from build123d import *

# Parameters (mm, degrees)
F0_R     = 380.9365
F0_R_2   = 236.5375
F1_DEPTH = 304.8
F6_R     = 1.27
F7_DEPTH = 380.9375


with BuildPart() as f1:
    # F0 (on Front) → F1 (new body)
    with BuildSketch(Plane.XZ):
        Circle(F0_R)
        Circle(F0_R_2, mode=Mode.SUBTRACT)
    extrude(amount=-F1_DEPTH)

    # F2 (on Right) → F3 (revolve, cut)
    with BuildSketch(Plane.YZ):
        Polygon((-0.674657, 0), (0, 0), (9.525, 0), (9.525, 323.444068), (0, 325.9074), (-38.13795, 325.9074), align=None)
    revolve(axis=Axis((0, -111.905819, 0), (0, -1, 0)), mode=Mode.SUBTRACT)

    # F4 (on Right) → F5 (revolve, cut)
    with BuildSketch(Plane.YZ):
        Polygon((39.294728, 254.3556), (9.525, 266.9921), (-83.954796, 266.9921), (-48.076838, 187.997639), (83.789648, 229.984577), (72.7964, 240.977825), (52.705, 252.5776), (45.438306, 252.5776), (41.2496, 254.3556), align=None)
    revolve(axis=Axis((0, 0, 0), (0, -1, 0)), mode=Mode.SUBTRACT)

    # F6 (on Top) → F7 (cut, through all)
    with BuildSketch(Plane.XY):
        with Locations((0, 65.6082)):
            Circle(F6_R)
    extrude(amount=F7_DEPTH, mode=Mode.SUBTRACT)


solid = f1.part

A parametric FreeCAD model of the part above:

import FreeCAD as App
import Part
import Sketcher
from FreeCAD import Vector
Q = App.Units.Quantity


def add_polygon(sketch, points):
    """Adds a closed chain of lines whose ends are joined by coincident constraints."""
    first, n = sketch.GeometryCount, len(points)
    for a, b in zip(points, points[1:] + points[:1]):
        sketch.addGeometry(Part.LineSegment(App.Vector(*a, 0), App.Vector(*b, 0)), False)
    for i in range(n):
        sketch.addConstraint(Sketcher.Constraint("Coincident", first + i, 2, first + (i + 1) % n, 1))

doc = App.newDocument("Part")
body = doc.addObject("PartDesign::Body", "Body")

sketch1 = body.newObject("Sketcher::SketchObject", "Sketch")
sketch1.AttachmentSupport = (doc.getObject("XZ_Plane"), [""])
sketch1.MapMode = "FlatFace"
sketch1.addGeometry([
    Part.Circle(Vector(0, 0, 0), Vector(0, 0, 1), 381),
    Part.Circle(Vector(0, 0, 0), Vector(0, 0, 1), 237),
], False)
sketch1.addConstraint([
    Sketcher.Constraint("Coincident", 0, 3, -1, 1),
    Sketcher.Constraint("Coincident", 1, 3, -1, 1),
    Sketcher.Constraint("Diameter", 0, Q("29.995 in")),
    Sketcher.Constraint("Diameter", 1, Q("18.625 in")),
])
pad1 = body.newObject("PartDesign::Pad", "Pad")
pad1.Profile = sketch1
pad1.Length = Q("12 in")
pad1.Reversed = True

sketch2 = body.newObject("Sketcher::SketchObject", "Sketch001")
sketch2.AttachmentSupport = (doc.getObject("YZ_Plane"), [""])
sketch2.MapMode = "FlatFace"
add_polygon(sketch2, [(-1, 0), (10, 0), (10, 323), (0, 326), (-38, 326)])
sketch2.addConstraint([
    Sketcher.Constraint("Horizontal", 0),
    Sketcher.Constraint("Vertical", 1),
    Sketcher.Constraint("Horizontal", 3),
    Sketcher.Constraint("PointOnObject", 0, 2, -1),
    Sketcher.Constraint("PointOnObject", 2, 2, -2),
    Sketcher.Constraint("Angle", 2, Q("165.500003 deg")),
    Sketcher.Constraint("DistanceX", -1, 1, 0, 2, Q("0.375 in")),
    Sketcher.Constraint("DistanceY", -1, 1, 2, 2, Q("12.831 in")),
    Sketcher.Constraint("DistanceX", 3, 2, 3, 1, 38.13795),
    Sketcher.Constraint("Distance", 4, 328.05355),
])
groove = body.newObject("PartDesign::Groove", "Groove")
groove.Profile = sketch2
groove.ReferenceAxis = (sketch2, ["H_Axis"])
groove.Angle = 360

sketch3 = body.newObject("Sketcher::SketchObject", "Sketch002")
sketch3.AttachmentSupport = (doc.getObject("YZ_Plane"), [""])
sketch3.MapMode = "FlatFace"
add_polygon(sketch3, [(39.3, 254.4), (9.5, 267), (-84, 267), (-48.1, 188), (83.8, 230), (72.8, 241), (52.7, 252.6), (45.4, 252.6), (41.2, 254.4)])
sketch3.addConstraint([
    Sketcher.Constraint("Horizontal", 1),
    Sketcher.Constraint("Horizontal", 6),
    Sketcher.Constraint("Horizontal", 8),
    Sketcher.Constraint("Parallel", 0, 7),
    Sketcher.Constraint("Angle", 0, Q("157 deg")),
    Sketcher.Constraint("Angle", 4, Q("135 deg")),
    Sketcher.Constraint("Angle", 5, Q("150 deg")),
    Sketcher.Constraint("DistanceX", 0, 2, 5, 2, Q("1.7 in")),
    Sketcher.Constraint("DistanceY", 6, 2, 7, 2, Q("0.07 in")),
    Sketcher.Constraint("DistanceX", -1, 1, 0, 2, Q("0.375 in")),
    Sketcher.Constraint("DistanceX", -1, 1, 4, 2, Q("2.866 in")),
    Sketcher.Constraint("DistanceY", -1, 1, 5, 2, Q("9.944 in")),
    Sketcher.Constraint("DistanceX", -1, 1, 7, 2, Q("1.624 in")),
    Sketcher.Constraint("DistanceY", -1, 1, 0, 2, Q("10.5115 in")),
    Sketcher.Constraint("Distance", 4, 15.5468),
    Sketcher.Constraint("Distance", 3, 138.38957),
    Sketcher.Constraint("DistanceX", 1, 2, 1, 1, 93.479796),
    Sketcher.Constraint("DistanceX", 2, 2, -1, 1, 48.076838),
])
groove2 = body.newObject("PartDesign::Groove", "Groove001")
groove2.Profile = sketch3
groove2.ReferenceAxis = (sketch3, ["H_Axis"])
groove2.Angle = 360

sketch4 = body.newObject("Sketcher::SketchObject", "Sketch003")
sketch4.AttachmentSupport = (doc.getObject("XY_Plane"), [""])
sketch4.MapMode = "FlatFace"
sketch4.addGeometry(Part.Circle(Vector(0, 65.6, 0), Vector(0, 0, 1), 1.3), False)
sketch4.addConstraint([
    Sketcher.Constraint("PointOnObject", 0, 3, -2),
    Sketcher.Constraint("Diameter", 0, Q("0.1 in")),
    Sketcher.Constraint("DistanceY", -1, 1, 0, 3, Q("2.583 in")),
])
pocket1 = body.newObject("PartDesign::Pocket", "Pocket")
pocket1.Profile = sketch4
pocket1.Type = "ThroughAll"
pocket1.Reversed = True

doc.recompute()
